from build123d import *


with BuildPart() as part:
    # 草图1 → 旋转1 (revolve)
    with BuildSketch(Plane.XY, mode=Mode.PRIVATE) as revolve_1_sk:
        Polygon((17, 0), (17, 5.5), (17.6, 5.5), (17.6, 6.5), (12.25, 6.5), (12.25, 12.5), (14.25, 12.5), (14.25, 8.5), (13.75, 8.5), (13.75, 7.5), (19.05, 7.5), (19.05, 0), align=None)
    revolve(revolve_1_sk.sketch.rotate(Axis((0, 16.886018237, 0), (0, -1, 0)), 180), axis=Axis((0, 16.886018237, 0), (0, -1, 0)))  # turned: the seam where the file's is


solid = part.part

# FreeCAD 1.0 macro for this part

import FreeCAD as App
import Part
import Sketcher

doc = App.newDocument("Part")
body = doc.addObject("PartDesign::Body", "Body")

# Sketch on XY plane
sketch1 = body.newObject("Sketcher::SketchObject", "Sketch")
sketch1.AttachmentSupport = (doc.getObject("XY_Plane"), [""])
sketch1.MapMode = "FlatFace"
sketch1.addGeometry([
    Part.LineSegment(App.Vector(17, 5.5, 0), App.Vector(17, 0, 0)),  # 0
    Part.LineSegment(App.Vector(17, 0, 0), App.Vector(19.05, 0, 0)),  # 1
    Part.LineSegment(App.Vector(19.05, 0, 0), App.Vector(19.05, 7.5, 0)),  # 2
    Part.LineSegment(App.Vector(19.05, 7.5, 0), App.Vector(13.75, 7.5, 0)),  # 3
    Part.LineSegment(App.Vector(13.75, 7.5, 0), App.Vector(13.75, 8.5, 0)),  # 4
    Part.LineSegment(App.Vector(13.75, 8.5, 0), App.Vector(14.25, 8.5, 0)),  # 5
    Part.LineSegment(App.Vector(14.25, 8.5, 0), App.Vector(14.25, 12.5, 0)),  # 6
    Part.LineSegment(App.Vector(14.25, 12.5, 0), App.Vector(12.25, 12.5, 0)),  # 7
    Part.LineSegment(App.Vector(12.25, 12.5, 0), App.Vector(12.25, 6.5, 0)),  # 8
    Part.LineSegment(App.Vector(12.25, 6.5, 0), App.Vector(17.6, 6.5, 0)),  # 9
    Part.LineSegment(App.Vector(17.6, 6.5, 0), App.Vector(17.6, 5.5, 0)),  # 10
    Part.LineSegment(App.Vector(17.6, 5.5, 0), App.Vector(17, 5.5, 0)),  # 11
], False)
sketch1.addConstraint([
    Sketcher.Constraint("Coincident", 0, 2, 1, 1),
    Sketcher.Constraint("Coincident", 1, 2, 2, 1),
    Sketcher.Constraint("Coincident", 2, 2, 3, 1),
    Sketcher.Constraint("Coincident", 3, 2, 4, 1),
    Sketcher.Constraint("Coincident", 4, 2, 5, 1),
    Sketcher.Constraint("Coincident", 5, 2, 6, 1),
    Sketcher.Constraint("Coincident", 6, 2, 7, 1),
    Sketcher.Constraint("Coincident", 7, 2, 8, 1),
    Sketcher.Constraint("Coincident", 8, 2, 9, 1),
    Sketcher.Constraint("Coincident", 9, 2, 10, 1),
    Sketcher.Constraint("Coincident", 10, 2, 11, 1),
    Sketcher.Constraint("Coincident", 11, 2, 0, 1),
    Sketcher.Constraint("Vertical", 0),
    Sketcher.Constraint("Horizontal", 1),
    Sketcher.Constraint("Vertical", 2),
    Sketcher.Constraint("Horizontal", 3),
    Sketcher.Constraint("Vertical", 4),
    Sketcher.Constraint("Horizontal", 5),
    Sketcher.Constraint("Vertical", 6),
    Sketcher.Constraint("Horizontal", 7),
    Sketcher.Constraint("Vertical", 8),
    Sketcher.Constraint("Horizontal", 9),
    Sketcher.Constraint("Vertical", 10),
    Sketcher.Constraint("Horizontal", 11),
    Sketcher.Constraint("PointOnObject", 0, 2, -1),
    Sketcher.Constraint("Equal", 4, 10),
    Sketcher.Constraint("DistanceX", 7, 2, 7, 1, 2.0),
    Sketcher.Constraint("DistanceY", 4, 1, 4, 2, 1.0),
    Sketcher.Constraint("DistanceY", 6, 1, 6, 2, 4.0),
    Sketcher.Constraint("DistanceY", 8, 2, 8, 1, 6.0),
    Sketcher.Constraint("DistanceX", 3, 2, 3, 1, 5.3),
    Sketcher.Constraint("DistanceX", 5, 1, 5, 2, 0.5),
    Sketcher.Constraint("DistanceX", 11, 2, 11, 1, 0.6),
    Sketcher.Constraint("DistanceY", 0, 2, 0, 1, 5.5),
    Sketcher.Constraint("DistanceX", -1, 1, 0, 2, 17.0),
    Sketcher.Constraint("DistanceX", 1, 1, 1, 2, 2.05),
])
revolution = body.newObject("PartDesign::Revolution", "Revolution")
revolution.Profile = sketch1
revolution.ReferenceAxis = (sketch1, ["V_Axis"])
revolution.Angle = 360

doc.recompute()
